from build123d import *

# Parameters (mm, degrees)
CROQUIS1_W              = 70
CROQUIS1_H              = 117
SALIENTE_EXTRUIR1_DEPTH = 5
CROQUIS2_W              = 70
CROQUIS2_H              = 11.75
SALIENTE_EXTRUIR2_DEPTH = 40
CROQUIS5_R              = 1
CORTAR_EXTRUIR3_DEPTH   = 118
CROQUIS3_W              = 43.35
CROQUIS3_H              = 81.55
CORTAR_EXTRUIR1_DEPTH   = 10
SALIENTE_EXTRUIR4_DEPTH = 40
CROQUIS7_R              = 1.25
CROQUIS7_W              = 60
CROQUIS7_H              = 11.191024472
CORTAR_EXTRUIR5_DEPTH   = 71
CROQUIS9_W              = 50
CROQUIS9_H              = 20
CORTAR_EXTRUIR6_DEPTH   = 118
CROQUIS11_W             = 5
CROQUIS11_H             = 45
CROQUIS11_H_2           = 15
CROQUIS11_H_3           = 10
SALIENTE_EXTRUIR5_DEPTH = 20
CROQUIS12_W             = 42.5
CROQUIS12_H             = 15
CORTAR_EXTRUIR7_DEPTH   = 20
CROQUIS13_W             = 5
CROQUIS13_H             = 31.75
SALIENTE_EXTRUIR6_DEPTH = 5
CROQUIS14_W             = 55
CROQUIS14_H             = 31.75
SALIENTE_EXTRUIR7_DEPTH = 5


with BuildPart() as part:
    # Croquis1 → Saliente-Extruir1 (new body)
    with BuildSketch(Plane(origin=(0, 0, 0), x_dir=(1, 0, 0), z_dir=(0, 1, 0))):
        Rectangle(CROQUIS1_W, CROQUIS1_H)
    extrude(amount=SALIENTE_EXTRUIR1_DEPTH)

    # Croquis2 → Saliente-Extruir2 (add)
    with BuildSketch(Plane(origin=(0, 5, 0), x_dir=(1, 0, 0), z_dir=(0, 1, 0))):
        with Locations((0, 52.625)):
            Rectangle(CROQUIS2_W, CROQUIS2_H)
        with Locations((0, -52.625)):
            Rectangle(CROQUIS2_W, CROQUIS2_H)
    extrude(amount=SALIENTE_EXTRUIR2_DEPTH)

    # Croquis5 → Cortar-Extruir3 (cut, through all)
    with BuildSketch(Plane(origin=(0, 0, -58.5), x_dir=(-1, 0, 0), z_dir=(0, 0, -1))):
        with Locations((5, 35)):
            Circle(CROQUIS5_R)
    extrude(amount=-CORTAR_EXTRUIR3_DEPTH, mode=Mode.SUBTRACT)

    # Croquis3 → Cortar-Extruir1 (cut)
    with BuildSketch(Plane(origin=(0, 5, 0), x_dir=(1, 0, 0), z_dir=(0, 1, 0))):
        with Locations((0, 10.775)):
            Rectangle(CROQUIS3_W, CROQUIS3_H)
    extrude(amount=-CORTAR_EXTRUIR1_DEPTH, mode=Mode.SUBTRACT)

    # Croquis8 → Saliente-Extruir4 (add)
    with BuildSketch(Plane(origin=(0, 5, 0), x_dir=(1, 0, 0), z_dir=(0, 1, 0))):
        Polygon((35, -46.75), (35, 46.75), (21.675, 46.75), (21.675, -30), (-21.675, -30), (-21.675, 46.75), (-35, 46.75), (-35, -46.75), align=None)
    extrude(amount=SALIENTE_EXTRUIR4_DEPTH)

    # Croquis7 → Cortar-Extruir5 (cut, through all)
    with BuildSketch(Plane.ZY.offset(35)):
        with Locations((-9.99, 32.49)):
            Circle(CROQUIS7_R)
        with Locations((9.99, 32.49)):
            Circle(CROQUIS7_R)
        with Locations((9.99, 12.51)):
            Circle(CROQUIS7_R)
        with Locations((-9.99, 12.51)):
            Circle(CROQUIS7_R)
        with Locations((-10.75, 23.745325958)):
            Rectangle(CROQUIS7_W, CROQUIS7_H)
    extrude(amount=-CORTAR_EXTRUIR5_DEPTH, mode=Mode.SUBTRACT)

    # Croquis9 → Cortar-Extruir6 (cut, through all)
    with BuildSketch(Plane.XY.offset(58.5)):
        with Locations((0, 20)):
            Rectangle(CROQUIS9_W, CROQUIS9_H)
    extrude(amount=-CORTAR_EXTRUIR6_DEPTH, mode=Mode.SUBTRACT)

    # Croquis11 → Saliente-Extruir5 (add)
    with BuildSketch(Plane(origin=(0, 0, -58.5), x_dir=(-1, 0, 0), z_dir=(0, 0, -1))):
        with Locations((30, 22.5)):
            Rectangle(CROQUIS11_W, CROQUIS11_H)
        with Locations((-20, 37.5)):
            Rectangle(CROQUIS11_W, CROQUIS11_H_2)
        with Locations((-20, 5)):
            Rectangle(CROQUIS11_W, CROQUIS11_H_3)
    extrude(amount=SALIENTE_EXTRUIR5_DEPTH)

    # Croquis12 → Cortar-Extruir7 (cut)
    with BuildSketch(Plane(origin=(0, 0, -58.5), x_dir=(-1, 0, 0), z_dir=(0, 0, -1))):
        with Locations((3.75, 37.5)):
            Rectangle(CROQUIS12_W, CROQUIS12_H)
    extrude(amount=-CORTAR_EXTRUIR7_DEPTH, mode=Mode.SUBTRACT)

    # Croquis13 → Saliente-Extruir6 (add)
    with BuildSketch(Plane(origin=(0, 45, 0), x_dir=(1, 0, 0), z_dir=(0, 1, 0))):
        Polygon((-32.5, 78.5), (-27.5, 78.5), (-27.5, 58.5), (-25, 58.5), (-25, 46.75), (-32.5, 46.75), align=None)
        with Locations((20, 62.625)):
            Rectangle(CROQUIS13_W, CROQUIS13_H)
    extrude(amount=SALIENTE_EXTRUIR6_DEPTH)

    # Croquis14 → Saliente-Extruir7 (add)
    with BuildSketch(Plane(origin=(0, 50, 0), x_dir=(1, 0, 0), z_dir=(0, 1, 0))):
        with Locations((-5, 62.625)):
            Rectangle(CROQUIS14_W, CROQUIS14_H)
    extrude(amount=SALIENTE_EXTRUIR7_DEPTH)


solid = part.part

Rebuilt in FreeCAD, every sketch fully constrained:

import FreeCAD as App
import Part
import Sketcher

V = App.Vector
Q = App.Units.Quantity


def add_polygon(sketch, points):
    """Adds a closed chain of lines whose ends are joined by coincident constraints."""
    first, n = sketch.GeometryCount, len(points)
    for a, b in zip(points, points[1:] + points[:1]):
        sketch.addGeometry(Part.LineSegment(App.Vector(*a, 0), App.Vector(*b, 0)), False)
    for i in range(n):
        sketch.addConstraint(Sketcher.Constraint("Coincident", first + i, 2, first + (i + 1) % n, 1))

doc = App.newDocument("Part")
body = doc.addObject("PartDesign::Body", "Body")

sketch1 = doc.addObject("Sketcher::SketchObject", "Sketch")
body.addObject(sketch1)
sketch1.AttachmentSupport = (doc.XZ_Plane, [""])
sketch1.MapMode = "FlatFace"
add_polygon(sketch1, [(-35, -58), (-35, 58), (35, 58), (35, -58)])
sketch1.addConstraint([
    Sketcher.Constraint("Vertical", 0),
    Sketcher.Constraint("Horizontal", 1),
    Sketcher.Constraint("Vertical", 2),
    Sketcher.Constraint("Horizontal", 3),
    Sketcher.Constraint("Symmetric", 0, 2, 2, 2, -1, 1),
    Sketcher.Constraint("DistanceX", 1, 1, 1, 2, Q("70 mm")),
    Sketcher.Constraint("DistanceY", 0, 1, 0, 2, Q("117 mm")),
])
pad1 = doc.addObject("PartDesign::Pad", "Pad")
body.addObject(pad1)
pad1.Profile = sketch1
pad1.Length = 5
pad1.Reversed = True

sketch2 = doc.addObject("Sketcher::SketchObject", "Sketch001")
body.addObject(sketch2)
sketch2.AttachmentSupport = (doc.XZ_Plane, [""])
sketch2.MapMode = "FlatFace"
sketch2.AttachmentOffset = App.Placement(V(0, 0, -5), App.Rotation())
add_polygon(sketch2, [(-35, -58), (-35, -47), (35, -47), (35, -58)])
add_polygon(sketch2, [(-35, 47), (-35, 58), (35, 58), (35, 47)])
sketch2.addConstraint([
    Sketcher.Constraint("Vertical", 0),
    Sketcher.Constraint("Horizontal", 1),
    Sketcher.Constraint("Vertical", 2),
    Sketcher.Constraint("Horizontal", 3),
    Sketcher.Constraint("Vertical", 4),
    Sketcher.Constraint("Horizontal", 5),
    Sketcher.Constraint("Vertical", 6),
    Sketcher.Constraint("Horizontal", 7),
    Sketcher.Constraint("Symmetric", 2, 2, 4, 2, -1, 1),
    Sketcher.Constraint("Symmetric", 0, 2, 6, 2, -1, 1),
    Sketcher.Constraint("Vertical", 3, 2, 4, 2),
    Sketcher.Constraint("DistanceX", 1, 1, 1, 2, Q("70 mm")),
    Sketcher.Constraint("DistanceY", 3, 2, 4, 2, Q("117 mm")),
    Sketcher.Constraint("DistanceY", 0, 1, 0, 2, Q("11.75 mm")),
])
pad2 = doc.addObject("PartDesign::Pad", "Pad001")
body.addObject(pad2)
pad2.Profile = sketch2
pad2.Length = 40
pad2.Reversed = True

sketch3 = doc.addObject("Sketcher::SketchObject", "Sketch002")
body.addObject(sketch3)
sketch3.AttachmentSupport = (doc.XY_Plane, [""])
sketch3.MapMode = "FlatFace"
sketch3.AttachmentOffset = App.Placement(V(0, 0, -58.5), App.Rotation())
sketch3.addGeometry(Part.Circle(V(-5, 35, 0), V(0, 0, 1), 1), False)
sketch3.addConstraint([
    Sketcher.Constraint("Diameter", 0, Q("2 mm")),
    Sketcher.Constraint("DistanceX", 0, 3, -1, 1, Q("5 mm")),
    Sketcher.Constraint("DistanceY", -1, 1, 0, 3, Q("35 mm")),
])
pocket1 = doc.addObject("PartDesign::Pocket", "Pocket")
body.addObject(pocket1)
pocket1.Profile = sketch3
pocket1.Type = "ThroughAll"
pocket1.Reversed = True

sketch4 = doc.addObject("Sketcher::SketchObject", "Sketch003")
body.addObject(sketch4)
sketch4.AttachmentSupport = (doc.XZ_Plane, [""])
sketch4.MapMode = "FlatFace"
sketch4.AttachmentOffset = App.Placement(V(0, 0, -5), App.Rotation())
add_polygon(sketch4, [(-22, -52), (-22, 30), (22, 30), (22, -52)])
sketch4.addConstraint([
    Sketcher.Constraint("Vertical", 0),
    Sketcher.Constraint("Horizontal", 1),
    Sketcher.Constraint("Vertical", 2),
    Sketcher.Constraint("Horizontal", 3),
    Sketcher.Constraint("DistanceY", -1, 1, 0, 2, Q("30 mm")),
    Sketcher.Constraint("DistanceX", 1, 1, 1, 2, Q("43.35 mm")),
    Sketcher.Constraint("DistanceY", 0, 1, 0, 2, Q("81.55 mm")),
    Sketcher.Constraint("DistanceX", 0, 2, -1, 1, Q("21.675 mm")),
])
pocket2 = doc.addObject("PartDesign::Pocket", "Pocket001")
body.addObject(pocket2)
pocket2.Profile = sketch4
pocket2.Length = 10
pocket2.Reversed = True

sketch5 = doc.addObject("Sketcher::SketchObject", "Sketch004")
body.addObject(sketch5)
sketch5.AttachmentSupport = (doc.XZ_Plane, [""])
sketch5.MapMode = "FlatFace"
sketch5.AttachmentOffset = App.Placement(V(0, 0, -5), App.Rotation())
add_polygon(sketch5, [(35, 47), (35, -47), (22, -47), (22, 30), (-22, 30), (-22, -47), (-35, -47), (-35, 47)])
sketch5.addConstraint([
    Sketcher.Constraint("Vertical", 0),
    Sketcher.Constraint("Horizontal", 1),
    Sketcher.Constraint("Vertical", 2),
    Sketcher.Constraint("Horizontal", 3),
    Sketcher.Constraint("Vertical", 4),
    Sketcher.Constraint("Horizontal", 5),
    Sketcher.Constraint("Vertical", 6),
    Sketcher.Constraint("Horizontal", 7),
    Sketcher.Constraint("Symmetric", 0, 2, 6, 2, -1, 1),
    Sketcher.Constraint("Symmetric", 1, 2, 4, 2, -2),
    Sketcher.Constraint("DistanceX", 7, 1, 7, 2, Q("70 mm")),
    Sketcher.Constraint("DistanceY", 0, 2, 0, 1, Q("93.5 mm")),
    Sketcher.Constraint("DistanceY", -1, 1, 2, 2, Q("30 mm")),
    Sketcher.Constraint("DistanceX", 3, 2, 3, 1, Q("43.35 mm")),
])
pad3 = doc.addObject("PartDesign::Pad", "Pad002")
body.addObject(pad3)
pad3.Profile = sketch5
pad3.Length = 40
pad3.Reversed = True

sketch6 = doc.addObject("Sketcher::SketchObject", "Sketch005")
body.addObject(sketch6)
sketch6.AttachmentSupport = (doc.YZ_Plane, [""])
sketch6.MapMode = "FlatFace"
sketch6.AttachmentOffset = App.Placement(V(0, 0, -35), App.Rotation())
sketch6.addGeometry(Part.Circle(V(32.5, -10, 0), V(0, 0, 1), 1.2), False)
sketch6.addGeometry(Part.Circle(V(32.5, 10, 0), V(0, 0, 1), 1.2), False)
sketch6.addGeometry(Part.Circle(V(12.5, 10, 0), V(0, 0, 1), 1.2), False)
sketch6.addGeometry(Part.Circle(V(12.5, -10, 0), V(0, 0, 1), 1.2), False)
add_polygon(sketch6, [(29.3, -40.8), (18.1, -40.8), (18.1, 19.2), (29.3, 19.2)])
sketch6.addConstraint([
    Sketcher.Constraint("Horizontal", 4),
    Sketcher.Constraint("Vertical", 5),
    Sketcher.Constraint("Horizontal", 6),
    Sketcher.Constraint("Vertical", 7),
    Sketcher.Constraint("Equal", 0, 1),
    Sketcher.Constraint("Equal", 1, 2),
    Sketcher.Constraint("Equal", 2, 3),
    Sketcher.Constraint("Symmetric", 0, 3, 1, 3, -1),
    Sketcher.Constraint("Symmetric", 2, 3, 3, 3, -1),
    Sketcher.Constraint("Horizontal", 1, 3, 2, 3),
    Sketcher.Constraint("Diameter", 0, Q("2.5 mm")),
    Sketcher.Constraint("DistanceY", 5, 1, 5, 2, Q("60 mm")),
    Sketcher.Constraint("DistanceX", -1, 1, 0, 3, Q("32.49 mm")),
    Sketcher.Constraint("DistanceY", 0, 3, -1, 1, Q("9.99 mm")),
    Sketcher.Constraint("DistanceX", -1, 1, 2, 3, Q("12.51 mm")),
    Sketcher.Constraint("DistanceY", 4, 2, -1, 1, Q("40.75 mm")),
    Sketcher.Constraint("DistanceX", 4, 2, 4, 1, Q("11.191024 mm")),
    Sketcher.Constraint("DistanceX", -1, 1, 6, 2, Q("29.340838 mm")),
])
pocket3 = doc.addObject("PartDesign::Pocket", "Pocket002")
body.addObject(pocket3)
pocket3.Profile = sketch6
pocket3.Type = "ThroughAll"
pocket3.Reversed = True

sketch7 = doc.addObject("Sketcher::SketchObject", "Sketch006")
body.addObject(sketch7)
sketch7.AttachmentSupport = (doc.XY_Plane, [""])
sketch7.MapMode = "FlatFace"
sketch7.AttachmentOffset = App.Placement(V(0, 0, 58.5), App.Rotation())
add_polygon(sketch7, [(-25, 30), (-25, 10), (25, 10), (25, 30)])
sketch7.addConstraint([
    Sketcher.Constraint("Vertical", 0),
    Sketcher.Constraint("Horizontal", 1),
    Sketcher.Constraint("Vertical", 2),
    Sketcher.Constraint("Horizontal", 3),
    Sketcher.Constraint("DistanceX", 1, 1, 1, 2, Q("50 mm")),
    Sketcher.Constraint("DistanceY", 0, 2, 0, 1, Q("20 mm")),
    Sketcher.Constraint("DistanceX", 0, 2, -1, 1, Q("25 mm")),
    Sketcher.Constraint("DistanceY", -1, 1, 0, 2, Q("10 mm")),
])
pocket4 = doc.addObject("PartDesign::Pocket", "Pocket003")
body.addObject(pocket4)
pocket4.Profile = sketch7
pocket4.Type = "ThroughAll"

sketch8 = doc.addObject("Sketcher::SketchObject", "Sketch007")
body.addObject(sketch8)
sketch8.AttachmentSupport = (doc.XY_Plane, [""])
sketch8.MapMode = "FlatFace"
sketch8.AttachmentOffset = App.Placement(V(0, 0, -58.5), App.Rotation())
add_polygon(sketch8, [(-28, 45), (-28, 0), (-32, 0), (-32, 45)])
add_polygon(sketch8, [(22, 45), (22, 30), (18, 30), (18, 45)])
add_polygon(sketch8, [(22, 10), (22, 0), (18, 0), (18, 10)])
sketch8.addConstraint([
    Sketcher.Constraint("Vertical", 0),
    Sketcher.Constraint("Horizontal", 1),
    Sketcher.Constraint("Vertical", 2),
    Sketcher.Constraint("Horizontal", 3),
    Sketcher.Constraint("Vertical", 4),
    Sketcher.Constraint("Horizontal", 5),
    Sketcher.Constraint("Vertical", 6),
    Sketcher.Constraint("Horizontal", 7),
    Sketcher.Constraint("Vertical", 8),
    Sketcher.Constraint("Horizontal", 9),
    Sketcher.Constraint("Vertical", 10),
    Sketcher.Constraint("Horizontal", 11),
    Sketcher.Constraint("PointOnObject", 0, 2, -1),
    Sketcher.Constraint("PointOnObject", 8, 2, -1),
    Sketcher.Constraint("Horizontal", 3, 2, 6, 2),
    Sketcher.Constraint("Vertical", 7, 2, 8, 2),
    Sketcher.Constraint("Vertical", 6, 2, 9, 2),
    Sketcher.Constraint("Equal", 3, 5),
    Sketcher.Constraint("DistanceX", 1, 2, 1, 1, Q("5 mm")),
    Sketcher.Constraint("DistanceY", 0, 2, 0, 1, Q("45 mm")),
    Sketcher.Constraint("DistanceY", 4, 2, 4, 1, Q("15 mm")),
    Sketcher.Constraint("DistanceY", 8, 2, 8, 1, Q("10 mm")),
    Sketcher.Constraint("DistanceX", 3, 2, 4, 2, Q("50 mm")),
    Sketcher.Constraint("DistanceX", 0, 2, -1, 1, Q("27.5 mm")),
])
pad4 = doc.addObject("PartDesign::Pad", "Pad003")
body.addObject(pad4)
pad4.Profile = sketch8
pad4.Length = 20
pad4.Reversed = True

sketch9 = doc.addObject("Sketcher::SketchObject", "Sketch008")
body.addObject(sketch9)
sketch9.AttachmentSupport = (doc.XY_Plane, [""])
sketch9.MapMode = "FlatFace"
sketch9.AttachmentOffset = App.Placement(V(0, 0, -58.5), App.Rotation())
add_polygon(sketch9, [(18, 45), (18, 30), (-25, 30), (-25, 45)])
sketch9.addConstraint([
    Sketcher.Constraint("Vertical", 0),
    Sketcher.Constraint("Horizontal", 1),
    Sketcher.Constraint("Vertical", 2),
    Sketcher.Constraint("Horizontal", 3),
    Sketcher.Constraint("DistanceY", 0, 2, 0, 1, Q("15 mm")),
    Sketcher.Constraint("DistanceX", 1, 2, 1, 1, Q("42.5 mm")),
    Sketcher.Constraint("DistanceY", -1, 1, 0, 2, Q("30 mm")),
    Sketcher.Constraint("DistanceX", 1, 2, -1, 1, Q("25 mm")),
])
pocket5 = doc.addObject("PartDesign::Pocket", "Pocket004")
body.addObject(pocket5)
pocket5.Profile = sketch9
pocket5.Length = 20
pocket5.Reversed = True

sketch10 = doc.addObject("Sketcher::SketchObject", "Sketch009")
body.addObject(sketch10)
sketch10.AttachmentSupport = (doc.XZ_Plane, [""])
sketch10.MapMode = "FlatFace"
sketch10.AttachmentOffset = App.Placement(V(0, 0, -45), App.Rotation())
add_polygon(sketch10, [(-27.5, -78.5), (-32.5, -78.5), (-32.5, -46.8), (-25, -46.8), (-25, -58.5), (-27.5, -58.5)])
add_polygon(sketch10, [(17.5, -78.5), (17.5, -46.8), (22.5, -46.8), (22.5, -78.5)])
sketch10.addConstraint([
    Sketcher.Constraint("Horizontal", 0),
    Sketcher.Constraint("Vertical", 1),
    Sketcher.Constraint("Horizontal", 2),
    Sketcher.Constraint("Vertical", 3),
    Sketcher.Constraint("Horizontal", 4),
    Sketcher.Constraint("Vertical", 5),
    Sketcher.Constraint("Vertical", 6),
    Sketcher.Constraint("Horizontal", 7),
    Sketcher.Constraint("Vertical", 8),
    Sketcher.Constraint("Horizontal", 9),
    Sketcher.Constraint("Horizontal", 2, 2, 6, 2),
    Sketcher.Constraint("Horizontal", 5, 2, 8, 2),
    Sketcher.Constraint("Equal", 0, 7),
    Sketcher.Constraint("DistanceX", 0, 2, 0, 1, Q("5 mm")),
    Sketcher.Constraint("DistanceY", 5, 2, 5, 1, Q("20 mm")),
    Sketcher.Constraint("DistanceX", 2, 1, 2, 2, Q("7.5 mm")),
    Sketcher.Constraint("DistanceX", 2, 2, -1, 1, Q("25 mm")),
    Sketcher.Constraint("DistanceX", 4, 2, 6, 2, Q("45 mm")),
    Sketcher.Constraint("DistanceY", 1, 1, 1, 2, Q("31.75 mm")),
    Sketcher.Constraint("DistanceY", 0, 2, -1, 1, Q("78.5 mm")),
])
pad5 = doc.addObject("PartDesign::Pad", "Pad004")
body.addObject(pad5)
pad5.Profile = sketch10
pad5.Length = 5
pad5.Reversed = True

sketch11 = doc.addObject("Sketcher::SketchObject", "Sketch010")
body.addObject(sketch11)
sketch11.AttachmentSupport = (doc.XZ_Plane, [""])
sketch11.MapMode = "FlatFace"
sketch11.AttachmentOffset = App.Placement(V(0, 0, -50), App.Rotation())
add_polygon(sketch11, [(-32, -78), (-32, -47), (22, -47), (22, -78)])
sketch11.addConstraint([
    Sketcher.Constraint("Vertical", 0),
    Sketcher.Constraint("Horizontal", 1),
    Sketcher.Constraint("Vertical", 2),
    Sketcher.Constraint("Horizontal", 3),
    Sketcher.Constraint("DistanceX", 1, 1, 1, 2, Q("55 mm")),
    Sketcher.Constraint("DistanceY", 0, 1, 0, 2, Q("31.75 mm")),
    Sketcher.Constraint("DistanceX", 0, 2, -1, 1, Q("32.5 mm")),
    Sketcher.Constraint("DistanceY", 2, 2, -1, 1, Q("78.5 mm")),
])
pad6 = doc.addObject("PartDesign::Pad", "Pad005")
body.addObject(pad6)
pad6.Profile = sketch11
pad6.Length = 5
pad6.Reversed = True

doc.recompute()
